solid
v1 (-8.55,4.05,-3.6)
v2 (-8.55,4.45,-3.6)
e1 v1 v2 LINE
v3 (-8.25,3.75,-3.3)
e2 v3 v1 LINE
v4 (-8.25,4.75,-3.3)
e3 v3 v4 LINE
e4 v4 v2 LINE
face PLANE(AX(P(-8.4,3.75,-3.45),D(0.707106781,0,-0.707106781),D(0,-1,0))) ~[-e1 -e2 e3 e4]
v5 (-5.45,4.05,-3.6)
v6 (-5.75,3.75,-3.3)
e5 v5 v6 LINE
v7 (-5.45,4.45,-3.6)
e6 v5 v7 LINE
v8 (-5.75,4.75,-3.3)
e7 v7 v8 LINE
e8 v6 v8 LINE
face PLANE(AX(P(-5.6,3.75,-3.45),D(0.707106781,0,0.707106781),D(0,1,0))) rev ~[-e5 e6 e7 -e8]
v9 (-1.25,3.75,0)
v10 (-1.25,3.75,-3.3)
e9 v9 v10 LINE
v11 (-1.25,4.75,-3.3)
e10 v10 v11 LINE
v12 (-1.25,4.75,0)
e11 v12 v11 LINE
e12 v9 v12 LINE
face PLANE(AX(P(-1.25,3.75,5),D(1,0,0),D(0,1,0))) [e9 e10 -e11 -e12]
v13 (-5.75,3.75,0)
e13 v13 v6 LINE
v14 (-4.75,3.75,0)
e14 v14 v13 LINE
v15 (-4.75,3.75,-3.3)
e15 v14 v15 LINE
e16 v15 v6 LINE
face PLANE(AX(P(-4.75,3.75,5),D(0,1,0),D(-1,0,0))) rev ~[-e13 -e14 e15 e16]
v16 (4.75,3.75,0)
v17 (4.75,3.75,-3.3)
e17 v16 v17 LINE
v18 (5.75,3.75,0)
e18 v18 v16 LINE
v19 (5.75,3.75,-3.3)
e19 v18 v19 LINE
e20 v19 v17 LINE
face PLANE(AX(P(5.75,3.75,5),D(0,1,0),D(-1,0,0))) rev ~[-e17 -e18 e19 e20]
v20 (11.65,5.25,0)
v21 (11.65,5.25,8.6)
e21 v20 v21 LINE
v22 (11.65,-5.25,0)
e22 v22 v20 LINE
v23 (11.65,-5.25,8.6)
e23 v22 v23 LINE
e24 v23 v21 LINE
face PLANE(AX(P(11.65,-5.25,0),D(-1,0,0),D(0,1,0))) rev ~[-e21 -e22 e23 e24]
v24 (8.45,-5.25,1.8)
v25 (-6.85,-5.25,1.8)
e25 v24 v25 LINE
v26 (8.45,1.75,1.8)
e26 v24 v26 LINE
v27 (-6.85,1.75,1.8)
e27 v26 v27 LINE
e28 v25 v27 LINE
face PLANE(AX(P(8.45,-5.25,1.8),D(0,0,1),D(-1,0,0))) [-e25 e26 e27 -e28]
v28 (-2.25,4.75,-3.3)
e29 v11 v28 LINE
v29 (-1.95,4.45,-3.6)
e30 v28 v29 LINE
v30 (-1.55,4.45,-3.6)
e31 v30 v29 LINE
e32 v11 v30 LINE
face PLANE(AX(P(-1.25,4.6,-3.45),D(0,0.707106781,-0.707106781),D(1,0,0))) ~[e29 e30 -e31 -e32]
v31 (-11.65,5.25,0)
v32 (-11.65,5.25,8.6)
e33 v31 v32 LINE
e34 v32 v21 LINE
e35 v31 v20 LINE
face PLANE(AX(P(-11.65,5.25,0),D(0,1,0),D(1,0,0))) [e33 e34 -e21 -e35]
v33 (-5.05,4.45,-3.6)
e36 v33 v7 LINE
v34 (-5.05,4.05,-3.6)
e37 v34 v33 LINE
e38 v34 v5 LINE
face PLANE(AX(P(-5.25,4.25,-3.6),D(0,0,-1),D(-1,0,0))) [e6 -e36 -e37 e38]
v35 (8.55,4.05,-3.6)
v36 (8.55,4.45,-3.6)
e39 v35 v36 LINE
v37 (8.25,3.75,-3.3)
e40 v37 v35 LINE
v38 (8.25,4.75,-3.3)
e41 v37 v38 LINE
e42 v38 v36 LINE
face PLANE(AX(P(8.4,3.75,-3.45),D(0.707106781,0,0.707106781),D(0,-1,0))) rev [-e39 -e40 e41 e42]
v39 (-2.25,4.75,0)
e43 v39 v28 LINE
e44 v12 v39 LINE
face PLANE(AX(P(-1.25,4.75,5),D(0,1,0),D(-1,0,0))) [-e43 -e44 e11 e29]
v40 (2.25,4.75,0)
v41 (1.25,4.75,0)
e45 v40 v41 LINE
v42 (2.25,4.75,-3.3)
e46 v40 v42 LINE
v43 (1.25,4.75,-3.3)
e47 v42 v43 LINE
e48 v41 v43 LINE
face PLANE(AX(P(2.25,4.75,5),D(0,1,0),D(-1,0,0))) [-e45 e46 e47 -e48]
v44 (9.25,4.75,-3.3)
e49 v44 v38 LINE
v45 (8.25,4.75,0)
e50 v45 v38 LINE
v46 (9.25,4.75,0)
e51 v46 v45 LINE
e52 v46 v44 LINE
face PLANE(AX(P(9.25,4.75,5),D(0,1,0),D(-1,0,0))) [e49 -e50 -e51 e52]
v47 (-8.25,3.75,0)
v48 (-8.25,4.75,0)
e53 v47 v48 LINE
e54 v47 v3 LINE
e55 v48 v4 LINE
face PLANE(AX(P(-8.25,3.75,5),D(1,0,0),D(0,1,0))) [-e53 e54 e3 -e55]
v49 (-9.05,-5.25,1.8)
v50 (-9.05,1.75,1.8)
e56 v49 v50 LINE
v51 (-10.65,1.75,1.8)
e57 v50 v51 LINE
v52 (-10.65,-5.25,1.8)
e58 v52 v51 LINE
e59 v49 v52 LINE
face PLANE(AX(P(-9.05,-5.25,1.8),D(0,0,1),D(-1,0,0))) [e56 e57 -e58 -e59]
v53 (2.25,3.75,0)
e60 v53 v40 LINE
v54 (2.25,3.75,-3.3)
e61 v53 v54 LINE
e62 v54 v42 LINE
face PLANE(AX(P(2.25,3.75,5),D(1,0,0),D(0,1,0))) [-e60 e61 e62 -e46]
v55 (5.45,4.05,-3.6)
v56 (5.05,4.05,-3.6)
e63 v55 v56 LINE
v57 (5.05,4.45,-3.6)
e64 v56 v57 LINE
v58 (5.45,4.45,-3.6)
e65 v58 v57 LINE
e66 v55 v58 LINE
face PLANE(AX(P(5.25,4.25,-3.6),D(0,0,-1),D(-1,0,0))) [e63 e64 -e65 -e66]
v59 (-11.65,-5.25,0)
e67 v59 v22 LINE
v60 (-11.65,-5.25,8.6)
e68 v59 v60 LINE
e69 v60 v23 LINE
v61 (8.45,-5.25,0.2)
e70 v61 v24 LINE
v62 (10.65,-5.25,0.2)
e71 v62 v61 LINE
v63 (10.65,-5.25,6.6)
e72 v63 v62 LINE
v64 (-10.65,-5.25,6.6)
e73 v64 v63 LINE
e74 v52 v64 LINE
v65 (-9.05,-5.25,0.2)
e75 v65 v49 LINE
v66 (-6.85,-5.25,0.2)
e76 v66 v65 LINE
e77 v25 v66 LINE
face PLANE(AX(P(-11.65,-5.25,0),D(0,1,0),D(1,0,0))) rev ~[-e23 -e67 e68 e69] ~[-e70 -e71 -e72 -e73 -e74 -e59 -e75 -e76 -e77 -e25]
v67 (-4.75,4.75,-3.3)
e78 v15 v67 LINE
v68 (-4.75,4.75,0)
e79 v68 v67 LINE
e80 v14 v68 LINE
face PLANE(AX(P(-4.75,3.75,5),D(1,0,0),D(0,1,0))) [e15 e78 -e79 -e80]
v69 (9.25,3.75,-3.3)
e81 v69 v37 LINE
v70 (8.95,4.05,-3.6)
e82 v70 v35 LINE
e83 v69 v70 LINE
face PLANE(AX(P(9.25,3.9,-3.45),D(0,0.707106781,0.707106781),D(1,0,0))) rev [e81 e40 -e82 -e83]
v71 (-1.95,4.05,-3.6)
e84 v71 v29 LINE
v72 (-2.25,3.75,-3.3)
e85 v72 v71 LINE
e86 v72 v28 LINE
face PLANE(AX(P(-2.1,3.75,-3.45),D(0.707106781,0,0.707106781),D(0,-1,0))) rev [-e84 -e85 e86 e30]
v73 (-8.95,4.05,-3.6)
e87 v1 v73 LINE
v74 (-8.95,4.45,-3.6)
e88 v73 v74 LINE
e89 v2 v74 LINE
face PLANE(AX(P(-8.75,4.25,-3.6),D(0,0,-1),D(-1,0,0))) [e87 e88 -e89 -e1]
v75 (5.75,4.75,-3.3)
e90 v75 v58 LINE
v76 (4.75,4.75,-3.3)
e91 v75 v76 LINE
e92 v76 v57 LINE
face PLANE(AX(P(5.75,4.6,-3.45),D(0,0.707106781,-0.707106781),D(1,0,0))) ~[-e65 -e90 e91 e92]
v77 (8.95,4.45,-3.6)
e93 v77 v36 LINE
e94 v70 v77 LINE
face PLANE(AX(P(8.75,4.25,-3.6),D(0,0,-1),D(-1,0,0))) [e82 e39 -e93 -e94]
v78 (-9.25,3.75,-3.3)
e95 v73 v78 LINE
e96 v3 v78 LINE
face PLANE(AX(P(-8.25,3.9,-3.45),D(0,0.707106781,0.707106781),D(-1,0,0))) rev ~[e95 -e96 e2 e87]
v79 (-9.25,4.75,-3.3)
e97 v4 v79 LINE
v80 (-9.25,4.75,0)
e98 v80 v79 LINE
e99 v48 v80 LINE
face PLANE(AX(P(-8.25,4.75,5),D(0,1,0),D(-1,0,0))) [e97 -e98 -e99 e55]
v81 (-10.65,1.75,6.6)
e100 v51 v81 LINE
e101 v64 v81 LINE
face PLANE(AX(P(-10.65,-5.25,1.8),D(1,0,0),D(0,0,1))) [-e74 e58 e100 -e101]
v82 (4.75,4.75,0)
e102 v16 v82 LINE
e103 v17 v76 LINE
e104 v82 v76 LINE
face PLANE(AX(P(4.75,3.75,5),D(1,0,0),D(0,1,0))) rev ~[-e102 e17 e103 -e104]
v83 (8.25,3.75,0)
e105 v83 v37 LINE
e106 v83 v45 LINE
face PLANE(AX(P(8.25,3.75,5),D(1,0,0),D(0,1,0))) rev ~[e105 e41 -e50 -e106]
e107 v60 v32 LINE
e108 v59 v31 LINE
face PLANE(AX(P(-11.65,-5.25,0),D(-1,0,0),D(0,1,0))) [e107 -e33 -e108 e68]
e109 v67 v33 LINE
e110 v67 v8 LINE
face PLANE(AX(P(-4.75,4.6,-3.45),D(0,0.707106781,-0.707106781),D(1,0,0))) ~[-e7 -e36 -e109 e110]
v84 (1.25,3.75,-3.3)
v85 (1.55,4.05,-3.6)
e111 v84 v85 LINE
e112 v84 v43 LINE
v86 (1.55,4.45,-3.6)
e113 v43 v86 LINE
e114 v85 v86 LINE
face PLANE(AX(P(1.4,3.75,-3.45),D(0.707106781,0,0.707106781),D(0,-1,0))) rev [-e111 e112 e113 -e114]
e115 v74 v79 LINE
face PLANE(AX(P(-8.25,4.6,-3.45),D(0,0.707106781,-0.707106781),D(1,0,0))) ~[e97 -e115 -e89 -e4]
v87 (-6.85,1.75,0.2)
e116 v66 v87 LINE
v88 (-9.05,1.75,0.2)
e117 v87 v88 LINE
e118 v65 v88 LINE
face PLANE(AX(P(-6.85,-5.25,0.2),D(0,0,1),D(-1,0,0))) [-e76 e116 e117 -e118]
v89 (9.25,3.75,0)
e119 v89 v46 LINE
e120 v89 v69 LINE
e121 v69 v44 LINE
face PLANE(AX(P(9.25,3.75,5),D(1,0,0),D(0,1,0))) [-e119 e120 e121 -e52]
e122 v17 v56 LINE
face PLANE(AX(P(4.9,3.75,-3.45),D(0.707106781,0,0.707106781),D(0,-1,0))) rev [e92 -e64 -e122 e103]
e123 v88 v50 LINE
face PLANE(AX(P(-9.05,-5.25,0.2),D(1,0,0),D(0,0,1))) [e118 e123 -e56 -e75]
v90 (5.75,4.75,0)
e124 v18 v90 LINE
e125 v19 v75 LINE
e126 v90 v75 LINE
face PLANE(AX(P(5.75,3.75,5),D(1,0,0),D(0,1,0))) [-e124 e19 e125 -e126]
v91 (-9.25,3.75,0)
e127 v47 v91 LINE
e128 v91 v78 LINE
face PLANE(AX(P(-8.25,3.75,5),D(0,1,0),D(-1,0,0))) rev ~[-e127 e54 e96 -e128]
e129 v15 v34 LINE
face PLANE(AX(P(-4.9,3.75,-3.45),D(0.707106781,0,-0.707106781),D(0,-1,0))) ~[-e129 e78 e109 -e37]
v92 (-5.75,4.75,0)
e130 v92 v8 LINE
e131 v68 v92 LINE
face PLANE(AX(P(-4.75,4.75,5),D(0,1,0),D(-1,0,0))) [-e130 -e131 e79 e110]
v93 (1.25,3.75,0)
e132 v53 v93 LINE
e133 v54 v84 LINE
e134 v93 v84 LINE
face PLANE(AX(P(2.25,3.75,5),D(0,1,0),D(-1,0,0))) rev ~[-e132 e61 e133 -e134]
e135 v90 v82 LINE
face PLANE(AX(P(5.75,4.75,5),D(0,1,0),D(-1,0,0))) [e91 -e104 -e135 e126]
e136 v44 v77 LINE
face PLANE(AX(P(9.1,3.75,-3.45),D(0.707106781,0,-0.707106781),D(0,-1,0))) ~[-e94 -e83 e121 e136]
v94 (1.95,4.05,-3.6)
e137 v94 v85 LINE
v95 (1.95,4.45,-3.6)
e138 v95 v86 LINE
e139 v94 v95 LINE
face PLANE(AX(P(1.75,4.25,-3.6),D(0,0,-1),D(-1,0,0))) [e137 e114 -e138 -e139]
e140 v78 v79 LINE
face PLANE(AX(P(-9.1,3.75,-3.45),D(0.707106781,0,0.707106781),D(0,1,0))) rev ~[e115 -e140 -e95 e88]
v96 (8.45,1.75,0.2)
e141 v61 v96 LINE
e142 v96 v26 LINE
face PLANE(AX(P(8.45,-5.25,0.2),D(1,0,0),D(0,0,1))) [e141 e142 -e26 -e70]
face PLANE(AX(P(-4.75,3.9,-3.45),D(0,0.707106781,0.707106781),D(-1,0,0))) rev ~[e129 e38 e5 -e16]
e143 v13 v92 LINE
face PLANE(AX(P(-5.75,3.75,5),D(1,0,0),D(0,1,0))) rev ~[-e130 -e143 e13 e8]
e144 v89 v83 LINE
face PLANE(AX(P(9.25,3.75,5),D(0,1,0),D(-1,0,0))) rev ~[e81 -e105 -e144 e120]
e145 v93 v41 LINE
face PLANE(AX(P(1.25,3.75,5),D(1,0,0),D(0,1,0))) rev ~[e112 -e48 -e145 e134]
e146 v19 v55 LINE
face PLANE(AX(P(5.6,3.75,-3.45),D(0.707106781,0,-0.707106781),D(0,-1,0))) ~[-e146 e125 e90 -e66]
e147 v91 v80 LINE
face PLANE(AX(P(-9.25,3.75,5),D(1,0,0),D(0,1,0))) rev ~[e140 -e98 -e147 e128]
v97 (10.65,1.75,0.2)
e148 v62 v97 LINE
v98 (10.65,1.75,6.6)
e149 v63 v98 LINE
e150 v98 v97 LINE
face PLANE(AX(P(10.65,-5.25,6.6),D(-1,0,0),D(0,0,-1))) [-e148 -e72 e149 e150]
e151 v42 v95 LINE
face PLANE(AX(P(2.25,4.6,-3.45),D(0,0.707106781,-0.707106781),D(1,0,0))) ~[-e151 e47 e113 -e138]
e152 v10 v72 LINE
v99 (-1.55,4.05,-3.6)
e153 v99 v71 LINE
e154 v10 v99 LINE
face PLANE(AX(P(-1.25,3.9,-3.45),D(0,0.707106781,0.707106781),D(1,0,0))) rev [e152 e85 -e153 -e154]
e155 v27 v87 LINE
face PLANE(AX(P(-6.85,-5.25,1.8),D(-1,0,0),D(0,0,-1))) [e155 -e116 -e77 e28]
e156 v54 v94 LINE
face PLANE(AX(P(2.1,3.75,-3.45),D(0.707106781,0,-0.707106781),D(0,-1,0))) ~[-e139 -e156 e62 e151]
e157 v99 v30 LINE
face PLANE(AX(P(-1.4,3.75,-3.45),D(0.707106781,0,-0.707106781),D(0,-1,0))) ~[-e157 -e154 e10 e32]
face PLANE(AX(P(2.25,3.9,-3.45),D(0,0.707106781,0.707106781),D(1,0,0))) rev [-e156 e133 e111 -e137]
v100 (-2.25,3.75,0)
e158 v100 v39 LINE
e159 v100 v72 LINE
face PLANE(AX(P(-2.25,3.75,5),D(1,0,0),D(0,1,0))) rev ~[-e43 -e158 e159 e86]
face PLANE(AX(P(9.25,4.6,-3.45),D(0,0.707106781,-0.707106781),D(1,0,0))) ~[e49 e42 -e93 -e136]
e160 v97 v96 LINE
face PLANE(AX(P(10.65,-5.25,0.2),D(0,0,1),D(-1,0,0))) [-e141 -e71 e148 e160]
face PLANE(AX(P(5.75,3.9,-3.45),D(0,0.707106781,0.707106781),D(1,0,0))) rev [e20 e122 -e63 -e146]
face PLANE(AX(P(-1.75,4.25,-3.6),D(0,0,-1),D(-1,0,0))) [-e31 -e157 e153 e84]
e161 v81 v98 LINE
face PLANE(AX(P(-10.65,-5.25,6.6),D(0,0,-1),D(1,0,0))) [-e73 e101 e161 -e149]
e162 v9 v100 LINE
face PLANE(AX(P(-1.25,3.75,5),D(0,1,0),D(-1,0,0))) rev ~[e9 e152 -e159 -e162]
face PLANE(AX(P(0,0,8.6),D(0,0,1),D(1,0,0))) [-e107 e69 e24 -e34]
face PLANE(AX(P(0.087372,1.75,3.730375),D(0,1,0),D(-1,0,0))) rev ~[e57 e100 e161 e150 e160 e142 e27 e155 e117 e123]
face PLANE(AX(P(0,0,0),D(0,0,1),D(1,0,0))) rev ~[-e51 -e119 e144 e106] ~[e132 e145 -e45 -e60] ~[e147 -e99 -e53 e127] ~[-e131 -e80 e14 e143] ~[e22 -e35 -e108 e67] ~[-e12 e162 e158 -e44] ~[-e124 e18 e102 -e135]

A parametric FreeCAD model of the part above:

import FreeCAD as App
import Part
import Sketcher
from FreeCAD import Vector


def edges_at(feature, points):
    """Names of the edges that pass closest to the given points."""
    edges = feature.Shape.Edges
    near = lambda p: min(range(len(edges)), key=lambda i: edges[i].distToShape(Part.Vertex(*p))[0])
    return sorted({f"Edge{near(p) + 1}" for p in points})


def add_polygon(sketch, points):
    """Adds a closed chain of lines whose ends are joined by coincident constraints."""
    first, n = sketch.GeometryCount, len(points)
    for a, b in zip(points, points[1:] + points[:1]):
        sketch.addGeometry(Part.LineSegment(App.Vector(*a, 0), App.Vector(*b, 0)), False)
    for i in range(n):
        sketch.addConstraint(Sketcher.Constraint("Coincident", first + i, 2, first + (i + 1) % n, 1))

doc = App.newDocument("Part")
body = doc.addObject("PartDesign::Body", "Body")

# Sketch on XY plane
sketch1 = body.newObject("Sketcher::SketchObject", "Sketch")
sketch1.AttachmentSupport = (doc.getObject("XY_Plane"), [""])
sketch1.MapMode = "FlatFace"
add_polygon(sketch1, [(-11.65, 5.25), (-11.65, -5.25), (11.65, -5.25), (11.65, 5.25)])  # lines 0-3
sketch1.addConstraint(Sketcher.Constraint("Vertical", 0))
sketch1.addConstraint(Sketcher.Constraint("Horizontal", 1))
sketch1.addConstraint(Sketcher.Constraint("Vertical", 2))
sketch1.addConstraint(Sketcher.Constraint("Horizontal", 3))
sketch1.addConstraint(Sketcher.Constraint("Symmetric", 0, 2, 2, 2, -1, 1))
sketch1.addConstraint(Sketcher.Constraint("DistanceX", 1, 1, 1, 2, 23.3))
sketch1.addConstraint(Sketcher.Constraint("DistanceY", 0, 2, 0, 1, 10.5))
pad1 = body.newObject("PartDesign::Pad", "Pad")
pad1.Profile = sketch1
pad1.Length = 8.6

# Sketch on XZ plane
sketch2 = body.newObject("Sketcher::SketchObject", "Sketch001")
sketch2.AttachmentSupport = (doc.getObject("XZ_Plane"), [""])
sketch2.MapMode = "FlatFace"
sketch2.AttachmentOffset = App.Placement(Vector(0, 0, 5.25), App.Rotation())
add_polygon(sketch2, [(10.65, 6.6), (-10.65, 6.6), (-10.65, 1.8), (-9.05, 1.8), (-9.05, 0.2), (-6.85, 0.2), (-6.85, 1.8), (8.45, 1.8), (8.45, 0.2), (10.65, 0.2)])  # lines 0-9
sketch2.addConstraint(Sketcher.Constraint("Horizontal", 0))
sketch2.addConstraint(Sketcher.Constraint("Vertical", 1))
sketch2.addConstraint(Sketcher.Constraint("Horizontal", 2))
sketch2.addConstraint(Sketcher.Constraint("Vertical", 3))
sketch2.addConstraint(Sketcher.Constraint("Horizontal", 4))
sketch2.addConstraint(Sketcher.Constraint("Vertical", 5))
sketch2.addConstraint(Sketcher.Constraint("Horizontal", 6))
sketch2.addConstraint(Sketcher.Constraint("Vertical", 7))
sketch2.addConstraint(Sketcher.Constraint("Horizontal", 8))
sketch2.addConstraint(Sketcher.Constraint("Vertical", 9))
sketch2.addConstraint(Sketcher.Constraint("Horizontal", 2, 2, 5, 2))
sketch2.addConstraint(Sketcher.Constraint("Horizontal", 4, 2, 7, 2))
sketch2.addConstraint(Sketcher.Constraint("Equal", 4, 8))
sketch2.addConstraint(Sketcher.Constraint("Equal", 2, 3))
sketch2.addConstraint(Sketcher.Constraint("DistanceX", 0, 2, 0, 1, 21.3))
sketch2.addConstraint(Sketcher.Constraint("DistanceX", 2, 1, 2, 2, 1.6))
sketch2.addConstraint(Sketcher.Constraint("DistanceX", 4, 1, 4, 2, 2.2))
sketch2.addConstraint(Sketcher.Constraint("DistanceY", 1, 2, 1, 1, 4.8))
sketch2.addConstraint(Sketcher.Constraint("DistanceY", -1, 1, 0, 2, 6.6))
sketch2.addConstraint(Sketcher.Constraint("DistanceX", 0, 2, -1, 1, 10.65))
pocket1 = body.newObject("PartDesign::Pocket", "Pocket")
pocket1.Profile = sketch2
pocket1.Length = 7

# Sketch on XY plane
sketch3 = body.newObject("Sketcher::SketchObject", "Sketch002")
sketch3.AttachmentSupport = (doc.getObject("XY_Plane"), [""])
sketch3.MapMode = "FlatFace"
sketch3.AttachmentOffset = App.Placement(Vector(0, 0, 5), App.Rotation())
add_polygon(sketch3, [(-8.25, 4.75), (-8.25, 3.75), (-9.25, 3.75), (-9.25, 4.75)])  # lines 0-3
sketch3.addConstraint(Sketcher.Constraint("Vertical", 0))
sketch3.addConstraint(Sketcher.Constraint("Horizontal", 1))
sketch3.addConstraint(Sketcher.Constraint("Vertical", 2))
sketch3.addConstraint(Sketcher.Constraint("Horizontal", 3))
sketch3.addConstraint(Sketcher.Constraint("Equal", 3, 0))
sketch3.addConstraint(Sketcher.Constraint("DistanceX", 1, 2, 1, 1, 1.0))
sketch3.addConstraint(Sketcher.Constraint("DistanceX", 0, 2, -1, 1, 8.25))
sketch3.addConstraint(Sketcher.Constraint("DistanceY", -1, 1, 0, 2, 3.75))
pad2 = body.newObject("PartDesign::Pad", "Pad001")
pad2.Profile = sketch3
pad2.Length = 8.6
pad2.Reversed = True
doc.recompute()

chamfer = body.newObject("PartDesign::Chamfer", "Chamfer")
chamfer.Base = (pad2, edges_at(pad2, [
    (-8.25, 4.25, -3.6),
    (-8.75, 3.75, -3.6),
    (-9.25, 4.25, -3.6),
    (-8.75, 4.75, -3.6),
]))
chamfer.Size = 0.3
doc.recompute()

linearpattern = body.newObject("PartDesign::LinearPattern", "LinearPattern")
linearpattern.Originals = [pad2]
linearpattern.Direction = (doc.getObject("X_Axis"), [""])
linearpattern.Mode = "offset"
linearpattern.Offset = 3.5
linearpattern.Occurrences = 6
body.Tip = linearpattern
doc.recompute()

chamfer2 = body.newObject("PartDesign::Chamfer", "Chamfer001")
chamfer2.Base = (linearpattern, edges_at(linearpattern, [
    (-4.75, 4.25, -3.6),
    (-5.25, 3.75, -3.6),
    (-5.75, 4.25, -3.6),
    (-5.25, 4.75, -3.6),
    (-1.25, 4.25, -3.6),
    (-1.75, 3.75, -3.6),
    (-2.25, 4.25, -3.6),
    (-1.75, 4.75, -3.6),
    (2.25, 4.25, -3.6),
    (1.75, 3.75, -3.6),
    (1.25, 4.25, -3.6),
    (1.75, 4.75, -3.6),
    (5.75, 4.25, -3.6),
    (5.25, 3.75, -3.6),
    (4.75, 4.25, -3.6),
    (5.25, 4.75, -3.6),
    (9.25, 4.25, -3.6),
    (8.75, 3.75, -3.6),
    (8.25, 4.25, -3.6),
    (8.75, 4.75, -3.6),
]))
chamfer2.Size = 0.3

doc.recompute()
